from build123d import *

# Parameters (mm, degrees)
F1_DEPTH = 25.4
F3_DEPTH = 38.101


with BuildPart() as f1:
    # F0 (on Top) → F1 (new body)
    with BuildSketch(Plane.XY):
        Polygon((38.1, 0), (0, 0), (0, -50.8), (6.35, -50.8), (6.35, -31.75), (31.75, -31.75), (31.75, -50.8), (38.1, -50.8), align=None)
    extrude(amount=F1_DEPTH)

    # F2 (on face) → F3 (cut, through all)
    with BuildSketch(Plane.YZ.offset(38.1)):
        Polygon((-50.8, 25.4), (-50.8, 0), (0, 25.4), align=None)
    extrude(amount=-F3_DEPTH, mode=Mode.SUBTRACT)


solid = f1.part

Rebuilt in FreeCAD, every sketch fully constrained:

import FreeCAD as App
import Part
import Sketcher

V = App.Vector
Q = App.Units.Quantity

doc = App.newDocument("Part")
body = doc.addObject("PartDesign::Body", "Body")

# Sketch on XY plane
sketch1 = body.newObject("Sketcher::SketchObject", "Sketch")
sketch1.AttachmentSupport = (doc.getObject("XY_Plane"), [""])
sketch1.MapMode = "FlatFace"
sketch1.addGeometry([
    Part.LineSegment(V(38.1, 0, 0), V(0, 0, 0)),  # 0
    Part.LineSegment(V(0, 0, 0), V(0, -50.8, 0)),  # 1
    Part.LineSegment(V(0, -50.8, 0), V(6.35, -50.8, 0)),  # 2
    Part.LineSegment(V(6.35, -50.8, 0), V(6.35, -31.75, 0)),  # 3
    Part.LineSegment(V(6.35, -31.75, 0), V(31.75, -31.75, 0)),  # 4
    Part.LineSegment(V(31.75, -31.75, 0), V(31.75, -50.8, 0)),  # 5
    Part.LineSegment(V(31.75, -50.8, 0), V(38.1, -50.8, 0)),  # 6
    Part.LineSegment(V(38.1, -50.8, 0), V(38.1, 0, 0)),  # 7
], False)
sketch1.addConstraint([
    Sketcher.Constraint("Coincident", 0, 2, 1, 1),
    Sketcher.Constraint("Coincident", 1, 2, 2, 1),
    Sketcher.Constraint("Coincident", 2, 2, 3, 1),
    Sketcher.Constraint("Coincident", 3, 2, 4, 1),
    Sketcher.Constraint("Coincident", 4, 2, 5, 1),
    Sketcher.Constraint("Coincident", 5, 2, 6, 1),
    Sketcher.Constraint("Coincident", 6, 2, 7, 1),
    Sketcher.Constraint("Coincident", 7, 2, 0, 1),
    Sketcher.Constraint("Horizontal", 0),
    Sketcher.Constraint("Vertical", 1),
    Sketcher.Constraint("Horizontal", 2),
    Sketcher.Constraint("Vertical", 3),
    Sketcher.Constraint("Horizontal", 4),
    Sketcher.Constraint("Vertical", 5),
    Sketcher.Constraint("Horizontal", 6),
    Sketcher.Constraint("Vertical", 7),
    Sketcher.Constraint("Coincident", 0, 2, -1, 1),
    Sketcher.Constraint("Horizontal", 2, 2, 5, 2),
    Sketcher.Constraint("Equal", 2, 6),
    Sketcher.Constraint("DistanceX", 4, 1, 4, 2, Q("1 in")),
    Sketcher.Constraint("DistanceY", 1, 2, 1, 1, Q("2 in")),
    Sketcher.Constraint("DistanceX", 0, 2, 0, 1, Q("1.5 in")),
    Sketcher.Constraint("DistanceY", 3, 1, 3, 2, Q("0.75 in")),
])
pad1 = body.newObject("PartDesign::Pad", "Pad")
pad1.Profile = sketch1
pad1.Length = Q("1 in")

# Sketch on YZ plane
sketch2 = body.newObject("Sketcher::SketchObject", "Sketch001")
sketch2.AttachmentSupport = (doc.getObject("YZ_Plane"), [""])
sketch2.MapMode = "FlatFace"
sketch2.AttachmentOffset = App.Placement(V(0, 0, 1.5 * 25.4), App.Rotation())
sketch2.addGeometry([
    Part.LineSegment(V(-50.8, 25.4, 0), V(-50.8, 0, 0)),
    Part.LineSegment(V(-50.8, 0, 0), V(0, 25.4, 0)),
    Part.LineSegment(V(0, 25.4, 0), V(-50.8, 25.4, 0)),
], False)
sketch2.addConstraint([
    Sketcher.Constraint("Coincident", 0, 2, 1, 1),
    Sketcher.Constraint("Coincident", 1, 2, 2, 1),
    Sketcher.Constraint("Coincident", 2, 2, 0, 1),
    Sketcher.Constraint("Vertical", 0),
    Sketcher.Constraint("Horizontal", 2),
    Sketcher.Constraint("PointOnObject", 0, 2, -1),
    Sketcher.Constraint("PointOnObject", 1, 2, -2),
    Sketcher.Constraint("DistanceX", 2, 2, 2, 1, Q("2 in")),
    Sketcher.Constraint("DistanceY", 0, 2, 0, 1, Q("1 in")),
])
pocket1 = body.newObject("PartDesign::Pocket", "Pocket")
pocket1.Profile = sketch2
pocket1.Type = "ThroughAll"

doc.recompute()
